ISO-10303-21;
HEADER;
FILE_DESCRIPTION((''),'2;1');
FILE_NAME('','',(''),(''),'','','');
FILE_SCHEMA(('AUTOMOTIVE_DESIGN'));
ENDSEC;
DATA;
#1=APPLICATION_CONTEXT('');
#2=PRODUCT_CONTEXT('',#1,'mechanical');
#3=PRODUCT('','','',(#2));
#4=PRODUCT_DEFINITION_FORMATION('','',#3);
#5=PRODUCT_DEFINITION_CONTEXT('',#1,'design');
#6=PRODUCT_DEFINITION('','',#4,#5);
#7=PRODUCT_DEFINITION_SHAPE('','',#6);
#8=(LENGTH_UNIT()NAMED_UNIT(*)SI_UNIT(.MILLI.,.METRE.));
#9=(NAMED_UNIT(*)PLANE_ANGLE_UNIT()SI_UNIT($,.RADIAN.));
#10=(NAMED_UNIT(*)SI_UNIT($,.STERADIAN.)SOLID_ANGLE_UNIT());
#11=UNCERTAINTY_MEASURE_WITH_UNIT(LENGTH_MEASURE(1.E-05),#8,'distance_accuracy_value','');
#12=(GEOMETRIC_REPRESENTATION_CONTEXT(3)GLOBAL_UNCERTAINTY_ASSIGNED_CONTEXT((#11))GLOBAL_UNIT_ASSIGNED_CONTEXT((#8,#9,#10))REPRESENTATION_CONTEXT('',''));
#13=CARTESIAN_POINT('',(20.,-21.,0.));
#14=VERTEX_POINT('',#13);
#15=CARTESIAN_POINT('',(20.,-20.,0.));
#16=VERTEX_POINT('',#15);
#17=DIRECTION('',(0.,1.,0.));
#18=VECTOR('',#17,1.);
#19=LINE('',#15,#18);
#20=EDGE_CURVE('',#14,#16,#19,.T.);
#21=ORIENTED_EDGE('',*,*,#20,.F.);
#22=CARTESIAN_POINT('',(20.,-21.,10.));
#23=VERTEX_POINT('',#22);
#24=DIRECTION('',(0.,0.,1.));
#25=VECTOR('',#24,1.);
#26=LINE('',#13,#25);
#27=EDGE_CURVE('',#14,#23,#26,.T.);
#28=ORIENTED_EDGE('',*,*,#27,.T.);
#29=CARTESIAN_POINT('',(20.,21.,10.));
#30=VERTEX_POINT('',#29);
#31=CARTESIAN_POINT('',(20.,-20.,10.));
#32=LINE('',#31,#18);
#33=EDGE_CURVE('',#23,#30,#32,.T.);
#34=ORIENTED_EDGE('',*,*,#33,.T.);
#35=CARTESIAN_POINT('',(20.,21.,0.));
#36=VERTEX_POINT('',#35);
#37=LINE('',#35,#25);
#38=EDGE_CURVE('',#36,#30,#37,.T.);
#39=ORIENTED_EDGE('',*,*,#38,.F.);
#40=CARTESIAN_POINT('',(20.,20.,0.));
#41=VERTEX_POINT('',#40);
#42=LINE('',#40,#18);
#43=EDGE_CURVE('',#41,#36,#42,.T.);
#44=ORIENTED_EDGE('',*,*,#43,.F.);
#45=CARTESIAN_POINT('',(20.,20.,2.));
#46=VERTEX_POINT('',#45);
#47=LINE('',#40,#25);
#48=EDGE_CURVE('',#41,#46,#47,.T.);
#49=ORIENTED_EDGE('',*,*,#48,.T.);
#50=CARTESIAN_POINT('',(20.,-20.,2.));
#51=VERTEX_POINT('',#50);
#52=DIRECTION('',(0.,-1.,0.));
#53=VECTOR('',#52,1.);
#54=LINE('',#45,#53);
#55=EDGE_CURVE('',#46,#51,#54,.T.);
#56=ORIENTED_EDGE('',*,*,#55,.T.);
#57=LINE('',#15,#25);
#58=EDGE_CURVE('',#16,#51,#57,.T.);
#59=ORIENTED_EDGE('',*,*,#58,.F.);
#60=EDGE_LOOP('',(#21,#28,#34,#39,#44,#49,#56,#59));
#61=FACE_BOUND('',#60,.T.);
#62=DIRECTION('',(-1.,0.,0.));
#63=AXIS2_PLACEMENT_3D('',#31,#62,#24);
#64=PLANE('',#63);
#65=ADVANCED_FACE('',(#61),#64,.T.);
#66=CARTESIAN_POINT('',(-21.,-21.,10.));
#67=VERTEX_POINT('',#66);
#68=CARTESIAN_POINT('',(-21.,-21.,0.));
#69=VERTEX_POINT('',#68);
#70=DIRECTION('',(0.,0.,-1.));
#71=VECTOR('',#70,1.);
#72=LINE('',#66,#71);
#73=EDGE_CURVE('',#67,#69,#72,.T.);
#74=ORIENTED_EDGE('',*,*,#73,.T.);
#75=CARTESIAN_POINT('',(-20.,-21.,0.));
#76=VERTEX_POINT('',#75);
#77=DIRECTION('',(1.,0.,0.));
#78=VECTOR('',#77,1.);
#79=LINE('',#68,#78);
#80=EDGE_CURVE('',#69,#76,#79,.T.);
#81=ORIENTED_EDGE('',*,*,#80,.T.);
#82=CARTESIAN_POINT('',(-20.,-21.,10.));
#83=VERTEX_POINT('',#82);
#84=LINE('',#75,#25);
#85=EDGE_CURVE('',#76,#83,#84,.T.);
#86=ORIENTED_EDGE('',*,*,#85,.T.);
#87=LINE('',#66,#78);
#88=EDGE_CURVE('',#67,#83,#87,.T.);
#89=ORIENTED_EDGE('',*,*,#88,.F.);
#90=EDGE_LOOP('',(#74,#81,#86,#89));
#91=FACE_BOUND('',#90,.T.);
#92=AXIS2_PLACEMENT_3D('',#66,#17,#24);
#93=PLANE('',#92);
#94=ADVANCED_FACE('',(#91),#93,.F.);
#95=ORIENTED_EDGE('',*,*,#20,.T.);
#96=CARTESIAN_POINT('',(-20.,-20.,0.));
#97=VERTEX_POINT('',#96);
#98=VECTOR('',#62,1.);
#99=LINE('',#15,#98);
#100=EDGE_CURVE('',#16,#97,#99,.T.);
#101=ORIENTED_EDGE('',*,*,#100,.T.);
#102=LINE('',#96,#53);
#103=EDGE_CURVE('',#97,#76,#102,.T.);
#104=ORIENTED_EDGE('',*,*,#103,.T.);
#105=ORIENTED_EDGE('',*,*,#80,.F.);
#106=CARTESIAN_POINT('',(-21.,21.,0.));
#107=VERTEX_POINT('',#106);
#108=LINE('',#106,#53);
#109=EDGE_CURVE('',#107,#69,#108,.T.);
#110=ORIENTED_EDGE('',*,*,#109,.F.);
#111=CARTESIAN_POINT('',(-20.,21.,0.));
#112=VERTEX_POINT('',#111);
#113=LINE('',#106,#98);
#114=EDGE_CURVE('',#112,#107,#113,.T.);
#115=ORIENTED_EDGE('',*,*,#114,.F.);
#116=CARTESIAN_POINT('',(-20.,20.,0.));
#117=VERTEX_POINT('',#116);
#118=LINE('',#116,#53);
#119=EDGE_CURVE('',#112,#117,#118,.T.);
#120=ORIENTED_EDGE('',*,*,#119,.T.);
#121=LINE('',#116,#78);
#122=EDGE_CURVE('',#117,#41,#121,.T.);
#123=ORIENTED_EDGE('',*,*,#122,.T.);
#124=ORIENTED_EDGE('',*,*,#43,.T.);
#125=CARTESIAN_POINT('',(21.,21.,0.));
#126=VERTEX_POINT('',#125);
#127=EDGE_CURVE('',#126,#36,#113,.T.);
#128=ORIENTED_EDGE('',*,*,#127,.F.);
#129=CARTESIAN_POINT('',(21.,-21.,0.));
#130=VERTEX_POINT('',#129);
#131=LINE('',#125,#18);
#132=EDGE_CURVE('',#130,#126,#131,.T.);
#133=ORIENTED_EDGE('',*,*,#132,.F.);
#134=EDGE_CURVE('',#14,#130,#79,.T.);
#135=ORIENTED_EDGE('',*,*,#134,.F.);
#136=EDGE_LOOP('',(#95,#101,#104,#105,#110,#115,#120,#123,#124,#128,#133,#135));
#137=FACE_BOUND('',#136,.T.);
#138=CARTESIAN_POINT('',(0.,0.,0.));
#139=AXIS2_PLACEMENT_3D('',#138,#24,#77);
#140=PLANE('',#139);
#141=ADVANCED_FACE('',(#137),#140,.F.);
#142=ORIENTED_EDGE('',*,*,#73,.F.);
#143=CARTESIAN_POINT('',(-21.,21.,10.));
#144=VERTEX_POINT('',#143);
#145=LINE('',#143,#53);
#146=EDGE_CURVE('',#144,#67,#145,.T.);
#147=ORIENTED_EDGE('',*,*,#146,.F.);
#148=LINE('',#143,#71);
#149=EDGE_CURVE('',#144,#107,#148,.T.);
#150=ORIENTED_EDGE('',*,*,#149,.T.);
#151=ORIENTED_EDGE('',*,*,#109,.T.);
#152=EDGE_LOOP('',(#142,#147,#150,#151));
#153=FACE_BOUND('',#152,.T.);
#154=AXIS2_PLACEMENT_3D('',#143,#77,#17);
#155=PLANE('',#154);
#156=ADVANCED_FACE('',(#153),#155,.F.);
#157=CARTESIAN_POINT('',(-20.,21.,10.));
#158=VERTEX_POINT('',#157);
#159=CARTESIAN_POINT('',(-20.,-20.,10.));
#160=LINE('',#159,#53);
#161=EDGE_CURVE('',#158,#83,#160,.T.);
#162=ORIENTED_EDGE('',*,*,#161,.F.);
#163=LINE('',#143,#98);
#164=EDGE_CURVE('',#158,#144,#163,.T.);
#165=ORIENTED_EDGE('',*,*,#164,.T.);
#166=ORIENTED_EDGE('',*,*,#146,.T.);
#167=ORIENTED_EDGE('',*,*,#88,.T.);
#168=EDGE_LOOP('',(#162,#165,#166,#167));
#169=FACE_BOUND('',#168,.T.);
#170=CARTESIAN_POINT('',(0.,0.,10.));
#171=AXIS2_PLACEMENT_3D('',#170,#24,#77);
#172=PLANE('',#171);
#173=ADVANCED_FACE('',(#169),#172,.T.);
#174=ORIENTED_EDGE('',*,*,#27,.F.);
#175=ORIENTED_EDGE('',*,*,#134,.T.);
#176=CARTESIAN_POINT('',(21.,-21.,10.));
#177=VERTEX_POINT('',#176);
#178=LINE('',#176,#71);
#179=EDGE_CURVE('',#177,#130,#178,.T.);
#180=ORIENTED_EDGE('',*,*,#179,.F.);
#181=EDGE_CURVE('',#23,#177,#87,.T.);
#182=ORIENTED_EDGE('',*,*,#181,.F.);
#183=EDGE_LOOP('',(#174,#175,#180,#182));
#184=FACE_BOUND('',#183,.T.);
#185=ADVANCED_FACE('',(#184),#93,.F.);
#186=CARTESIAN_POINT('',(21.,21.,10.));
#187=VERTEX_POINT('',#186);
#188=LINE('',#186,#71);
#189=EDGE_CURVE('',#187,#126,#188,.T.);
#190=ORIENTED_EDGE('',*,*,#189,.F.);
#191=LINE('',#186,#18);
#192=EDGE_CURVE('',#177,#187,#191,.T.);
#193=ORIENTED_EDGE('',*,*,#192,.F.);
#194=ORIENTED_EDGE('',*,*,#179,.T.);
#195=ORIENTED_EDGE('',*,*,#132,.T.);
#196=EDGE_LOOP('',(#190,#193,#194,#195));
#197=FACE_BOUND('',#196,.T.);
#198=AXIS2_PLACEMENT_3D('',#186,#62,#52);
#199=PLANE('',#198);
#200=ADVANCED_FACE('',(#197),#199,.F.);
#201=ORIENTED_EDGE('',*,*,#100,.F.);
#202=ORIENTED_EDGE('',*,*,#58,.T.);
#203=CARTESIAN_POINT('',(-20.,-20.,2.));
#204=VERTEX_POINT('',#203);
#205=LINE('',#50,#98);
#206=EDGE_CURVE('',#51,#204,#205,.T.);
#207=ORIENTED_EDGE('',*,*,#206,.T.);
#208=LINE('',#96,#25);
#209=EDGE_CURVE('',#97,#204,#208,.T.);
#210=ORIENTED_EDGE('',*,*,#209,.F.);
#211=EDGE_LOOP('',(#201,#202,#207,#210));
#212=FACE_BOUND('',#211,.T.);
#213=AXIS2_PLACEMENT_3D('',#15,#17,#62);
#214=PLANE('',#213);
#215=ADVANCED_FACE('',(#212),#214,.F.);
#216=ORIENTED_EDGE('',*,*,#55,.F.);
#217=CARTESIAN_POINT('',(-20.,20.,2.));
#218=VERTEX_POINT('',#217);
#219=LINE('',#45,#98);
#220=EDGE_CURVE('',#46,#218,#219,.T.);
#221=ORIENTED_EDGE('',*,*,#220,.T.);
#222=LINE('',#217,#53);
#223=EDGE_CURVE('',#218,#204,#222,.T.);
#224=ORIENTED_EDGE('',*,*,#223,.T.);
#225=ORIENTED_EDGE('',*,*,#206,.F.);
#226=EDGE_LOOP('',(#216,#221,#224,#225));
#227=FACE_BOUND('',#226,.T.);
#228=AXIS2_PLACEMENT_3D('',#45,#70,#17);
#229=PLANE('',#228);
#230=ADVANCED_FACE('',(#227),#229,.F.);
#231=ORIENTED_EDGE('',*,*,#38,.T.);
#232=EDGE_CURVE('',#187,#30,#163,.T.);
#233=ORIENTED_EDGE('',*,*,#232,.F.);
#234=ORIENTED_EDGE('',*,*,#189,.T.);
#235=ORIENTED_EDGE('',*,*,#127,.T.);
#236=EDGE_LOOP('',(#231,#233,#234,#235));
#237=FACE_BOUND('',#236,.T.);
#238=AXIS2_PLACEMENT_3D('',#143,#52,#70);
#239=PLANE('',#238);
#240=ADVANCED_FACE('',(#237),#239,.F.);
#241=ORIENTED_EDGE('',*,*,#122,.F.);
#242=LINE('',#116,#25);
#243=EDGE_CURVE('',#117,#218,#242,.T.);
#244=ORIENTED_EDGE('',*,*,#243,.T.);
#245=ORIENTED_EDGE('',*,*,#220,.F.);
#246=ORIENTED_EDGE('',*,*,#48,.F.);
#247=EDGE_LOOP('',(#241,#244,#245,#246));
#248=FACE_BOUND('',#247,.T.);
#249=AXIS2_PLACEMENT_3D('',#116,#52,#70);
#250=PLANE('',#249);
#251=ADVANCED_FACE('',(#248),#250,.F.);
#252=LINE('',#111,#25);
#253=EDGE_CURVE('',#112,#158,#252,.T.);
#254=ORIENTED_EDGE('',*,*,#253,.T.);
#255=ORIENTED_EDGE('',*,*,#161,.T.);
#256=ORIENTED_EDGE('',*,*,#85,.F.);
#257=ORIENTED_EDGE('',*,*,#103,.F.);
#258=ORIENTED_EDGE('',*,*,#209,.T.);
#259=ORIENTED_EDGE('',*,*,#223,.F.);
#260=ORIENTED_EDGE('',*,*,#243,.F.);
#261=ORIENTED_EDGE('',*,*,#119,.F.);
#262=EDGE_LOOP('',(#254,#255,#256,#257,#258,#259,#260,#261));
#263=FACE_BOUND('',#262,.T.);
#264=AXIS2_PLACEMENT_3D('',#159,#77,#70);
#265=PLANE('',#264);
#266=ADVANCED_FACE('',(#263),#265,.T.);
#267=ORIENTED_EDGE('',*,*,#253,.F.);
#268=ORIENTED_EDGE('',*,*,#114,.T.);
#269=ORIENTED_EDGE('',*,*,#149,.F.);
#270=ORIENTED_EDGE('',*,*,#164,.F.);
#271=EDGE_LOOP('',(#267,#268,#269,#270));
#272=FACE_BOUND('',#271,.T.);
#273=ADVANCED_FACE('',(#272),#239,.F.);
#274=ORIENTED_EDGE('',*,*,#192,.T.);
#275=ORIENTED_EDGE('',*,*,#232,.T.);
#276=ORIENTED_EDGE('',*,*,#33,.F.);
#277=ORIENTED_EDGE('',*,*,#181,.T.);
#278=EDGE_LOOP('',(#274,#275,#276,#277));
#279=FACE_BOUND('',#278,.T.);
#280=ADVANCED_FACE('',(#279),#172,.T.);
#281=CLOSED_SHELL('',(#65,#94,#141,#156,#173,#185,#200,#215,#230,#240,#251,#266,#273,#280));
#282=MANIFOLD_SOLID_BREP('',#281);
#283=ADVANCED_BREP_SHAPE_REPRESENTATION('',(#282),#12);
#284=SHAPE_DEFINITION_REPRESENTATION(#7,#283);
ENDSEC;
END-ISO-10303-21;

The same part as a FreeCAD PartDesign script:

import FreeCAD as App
import Part
import Sketcher
Q = App.Units.Quantity

doc = App.newDocument("Part")
params = doc.addObject("Spreadsheet::Sheet", "Params")
for row, (alias, value) in enumerate([
    ("sketch1_width", "42 mm"),
    ("sketch1_width2", "40 mm"),
    ("pad1_length", "10 mm"),
    ("sketch2_width", "40 mm"),
    ("sketch2_height", "2 mm"),
    ("pad2_length", "40 mm"),
    ("sketch3_width", "40 mm"),
    ("sketch3_height", "1 mm"),
    ("pocket1_length", "10 mm"),
    ("sketch4_width", "40 mm"),
    ("sketch4_height", "1 mm"),
    ("pocket2_length", "10 mm"),
], start=1):
    params.set(f"A{row}", alias)
    params.set(f"B{row}", "=" + value)
    params.setAlias(f"B{row}", alias)

body = doc.addObject("PartDesign::Body", "Body")

sketch1 = body.newObject("Sketcher::SketchObject", "Sketch")
sketch1.AttachmentSupport = (doc.getObject("XY_Plane"), [""])
sketch1.MapMode = "FlatFace"
sketch1.addGeometry([
    Part.LineSegment(App.Vector(-21, 21, 0), App.Vector(-21, -21, 0)),
    Part.LineSegment(App.Vector(-21, -21, 0), App.Vector(21, -21, 0)),
    Part.LineSegment(App.Vector(21, -21, 0), App.Vector(21, 21, 0)),
    Part.LineSegment(App.Vector(21, 21, 0), App.Vector(-21, 21, 0)),
    Part.LineSegment(App.Vector(20, -20, 0), App.Vector(-20, -20, 0)),
    Part.LineSegment(App.Vector(-20, -20, 0), App.Vector(-20, 20, 0)),
    Part.LineSegment(App.Vector(-20, 20, 0), App.Vector(20, 20, 0)),
    Part.LineSegment(App.Vector(20, 20, 0), App.Vector(20, -20, 0)),
], False)
sketch1.addConstraint([
    Sketcher.Constraint("Coincident", 0, 2, 1, 1),
    Sketcher.Constraint("Coincident", 1, 2, 2, 1),
    Sketcher.Constraint("Coincident", 2, 2, 3, 1),
    Sketcher.Constraint("Coincident", 3, 2, 0, 1),
    Sketcher.Constraint("Coincident", 4, 2, 5, 1),
    Sketcher.Constraint("Coincident", 5, 2, 6, 1),
    Sketcher.Constraint("Coincident", 6, 2, 7, 1),
    Sketcher.Constraint("Coincident", 7, 2, 4, 1),
    Sketcher.Constraint("Vertical", 0),
    Sketcher.Constraint("Horizontal", 1),
    Sketcher.Constraint("Vertical", 2),
    Sketcher.Constraint("Horizontal", 3),
    Sketcher.Constraint("Horizontal", 4),
    Sketcher.Constraint("Vertical", 5),
    Sketcher.Constraint("Horizontal", 6),
    Sketcher.Constraint("Vertical", 7),
    Sketcher.Constraint("Symmetric", 0, 2, 2, 2, -1, 1),
    Sketcher.Constraint("Symmetric", 4, 2, 6, 2, -1, 1),
    Sketcher.Constraint("Equal", 3, 0),
    Sketcher.Constraint("Equal", 6, 5),
    Sketcher.Constraint("DistanceX", 1, 1, 1, 2, Q("42 mm")),
    Sketcher.Constraint("DistanceX", 4, 2, 4, 1, Q("40 mm")),
])
sketch1.setExpression("Constraints[20]", "Params.sketch1_width")
sketch1.setExpression("Constraints[21]", "Params.sketch1_width2")
pad1 = body.newObject("PartDesign::Pad", "Pad")
pad1.Profile = sketch1
pad1.setExpression("Length", "Params.pad1_length")

sketch2 = body.newObject("Sketcher::SketchObject", "Sketch001")
sketch2.AttachmentSupport = (doc.getObject("YZ_Plane"), [""])
sketch2.MapMode = "FlatFace"
sketch2.AttachmentOffset = App.Placement(App.Vector(0, 0, -20), App.Rotation())
sketch2.addGeometry([
    Part.LineSegment(App.Vector(20, 2, 0), App.Vector(-20, 2, 0)),
    Part.LineSegment(App.Vector(-20, 2, 0), App.Vector(-20, 0, 0)),
    Part.LineSegment(App.Vector(-20, 0, 0), App.Vector(20, 0, 0)),
    Part.LineSegment(App.Vector(20, 0, 0), App.Vector(20, 2, 0)),
], False)
sketch2.addConstraint([
    Sketcher.Constraint("Coincident", 0, 2, 1, 1),
    Sketcher.Constraint("Coincident", 1, 2, 2, 1),
    Sketcher.Constraint("Coincident", 2, 2, 3, 1),
    Sketcher.Constraint("Coincident", 3, 2, 0, 1),
    Sketcher.Constraint("Horizontal", 0),
    Sketcher.Constraint("Vertical", 1),
    Sketcher.Constraint("Horizontal", 2),
    Sketcher.Constraint("Vertical", 3),
    Sketcher.Constraint("Symmetric", 1, 2, 2, 2, -1, 1),
    Sketcher.Constraint("DistanceX", 0, 2, 0, 1, Q("40 mm")),
    Sketcher.Constraint("DistanceY", 1, 2, 1, 1, Q("2 mm")),
])
sketch2.setExpression("Constraints[9]", "Params.sketch2_width")
sketch2.setExpression("Constraints[10]", "Params.sketch2_height")
pad2 = body.newObject("PartDesign::Pad", "Pad001")
pad2.Profile = sketch2
pad2.setExpression("Length", "Params.pad2_length")

sketch3 = body.newObject("Sketcher::SketchObject", "Sketch002")
sketch3.AttachmentSupport = (doc.getObject("XY_Plane"), [""])
sketch3.MapMode = "FlatFace"
sketch3.AttachmentOffset = App.Placement(App.Vector(0, 0, 10), App.Rotation())
sketch3.addGeometry([
    Part.LineSegment(App.Vector(-20, 21, 0), App.Vector(-20, 20, 0)),
    Part.LineSegment(App.Vector(-20, 20, 0), App.Vector(20, 20, 0)),
    Part.LineSegment(App.Vector(20, 20, 0), App.Vector(20, 21, 0)),
    Part.LineSegment(App.Vector(20, 21, 0), App.Vector(-20, 21, 0)),
], False)
sketch3.addConstraint([
    Sketcher.Constraint("Coincident", 0, 2, 1, 1),
    Sketcher.Constraint("Coincident", 1, 2, 2, 1),
    Sketcher.Constraint("Coincident", 2, 2, 3, 1),
    Sketcher.Constraint("Coincident", 3, 2, 0, 1),
    Sketcher.Constraint("Vertical", 0),
    Sketcher.Constraint("Horizontal", 1),
    Sketcher.Constraint("Vertical", 2),
    Sketcher.Constraint("Horizontal", 3),
    Sketcher.Constraint("DistanceX", 1, 1, 1, 2, Q("40 mm")),
    Sketcher.Constraint("DistanceY", 0, 2, 0, 1, Q("1 mm")),
    Sketcher.Constraint("DistanceX", 0, 2, -1, 1, Q("20 mm")),
    Sketcher.Constraint("DistanceY", -1, 1, 0, 2, Q("20 mm")),
])
sketch3.setExpression("Constraints[8]", "Params.sketch3_width")
sketch3.setExpression("Constraints[9]", "Params.sketch3_height")
pocket1 = body.newObject("PartDesign::Pocket", "Pocket")
pocket1.Profile = sketch3
pocket1.setExpression("Length", "Params.pocket1_length")

sketch4 = body.newObject("Sketcher::SketchObject", "Sketch003")
sketch4.AttachmentSupport = (doc.getObject("XY_Plane"), [""])
sketch4.MapMode = "FlatFace"
sketch4.AttachmentOffset = App.Placement(App.Vector(0, 0, 10), App.Rotation())
sketch4.addGeometry([
    Part.LineSegment(App.Vector(-20, -20, 0), App.Vector(-20, -21, 0)),
    Part.LineSegment(App.Vector(-20, -21, 0), App.Vector(20, -21, 0)),
    Part.LineSegment(App.Vector(20, -21, 0), App.Vector(20, -20, 0)),
    Part.LineSegment(App.Vector(20, -20, 0), App.Vector(-20, -20, 0)),
], False)
sketch4.addConstraint([
    Sketcher.Constraint("Coincident", 0, 2, 1, 1),
    Sketcher.Constraint("Coincident", 1, 2, 2, 1),
    Sketcher.Constraint("Coincident", 2, 2, 3, 1),
    Sketcher.Constraint("Coincident", 3, 2, 0, 1),
    Sketcher.Constraint("Vertical", 0),
    Sketcher.Constraint("Horizontal", 1),
    Sketcher.Constraint("Vertical", 2),
    Sketcher.Constraint("Horizontal", 3),
    Sketcher.Constraint("DistanceX", 1, 1, 1, 2, Q("40 mm")),
    Sketcher.Constraint("DistanceY", 0, 2, 0, 1, Q("1 mm")),
    Sketcher.Constraint("DistanceX", 0, 2, -1, 1, Q("20 mm")),
    Sketcher.Constraint("DistanceY", 0, 2, -1, 1, Q("21 mm")),
])
sketch4.setExpression("Constraints[8]", "Params.sketch4_width")
sketch4.setExpression("Constraints[9]", "Params.sketch4_height")
pocket2 = body.newObject("PartDesign::Pocket", "Pocket001")
pocket2.Profile = sketch4
pocket2.setExpression("Length", "Params.pocket2_length")

doc.recompute()
